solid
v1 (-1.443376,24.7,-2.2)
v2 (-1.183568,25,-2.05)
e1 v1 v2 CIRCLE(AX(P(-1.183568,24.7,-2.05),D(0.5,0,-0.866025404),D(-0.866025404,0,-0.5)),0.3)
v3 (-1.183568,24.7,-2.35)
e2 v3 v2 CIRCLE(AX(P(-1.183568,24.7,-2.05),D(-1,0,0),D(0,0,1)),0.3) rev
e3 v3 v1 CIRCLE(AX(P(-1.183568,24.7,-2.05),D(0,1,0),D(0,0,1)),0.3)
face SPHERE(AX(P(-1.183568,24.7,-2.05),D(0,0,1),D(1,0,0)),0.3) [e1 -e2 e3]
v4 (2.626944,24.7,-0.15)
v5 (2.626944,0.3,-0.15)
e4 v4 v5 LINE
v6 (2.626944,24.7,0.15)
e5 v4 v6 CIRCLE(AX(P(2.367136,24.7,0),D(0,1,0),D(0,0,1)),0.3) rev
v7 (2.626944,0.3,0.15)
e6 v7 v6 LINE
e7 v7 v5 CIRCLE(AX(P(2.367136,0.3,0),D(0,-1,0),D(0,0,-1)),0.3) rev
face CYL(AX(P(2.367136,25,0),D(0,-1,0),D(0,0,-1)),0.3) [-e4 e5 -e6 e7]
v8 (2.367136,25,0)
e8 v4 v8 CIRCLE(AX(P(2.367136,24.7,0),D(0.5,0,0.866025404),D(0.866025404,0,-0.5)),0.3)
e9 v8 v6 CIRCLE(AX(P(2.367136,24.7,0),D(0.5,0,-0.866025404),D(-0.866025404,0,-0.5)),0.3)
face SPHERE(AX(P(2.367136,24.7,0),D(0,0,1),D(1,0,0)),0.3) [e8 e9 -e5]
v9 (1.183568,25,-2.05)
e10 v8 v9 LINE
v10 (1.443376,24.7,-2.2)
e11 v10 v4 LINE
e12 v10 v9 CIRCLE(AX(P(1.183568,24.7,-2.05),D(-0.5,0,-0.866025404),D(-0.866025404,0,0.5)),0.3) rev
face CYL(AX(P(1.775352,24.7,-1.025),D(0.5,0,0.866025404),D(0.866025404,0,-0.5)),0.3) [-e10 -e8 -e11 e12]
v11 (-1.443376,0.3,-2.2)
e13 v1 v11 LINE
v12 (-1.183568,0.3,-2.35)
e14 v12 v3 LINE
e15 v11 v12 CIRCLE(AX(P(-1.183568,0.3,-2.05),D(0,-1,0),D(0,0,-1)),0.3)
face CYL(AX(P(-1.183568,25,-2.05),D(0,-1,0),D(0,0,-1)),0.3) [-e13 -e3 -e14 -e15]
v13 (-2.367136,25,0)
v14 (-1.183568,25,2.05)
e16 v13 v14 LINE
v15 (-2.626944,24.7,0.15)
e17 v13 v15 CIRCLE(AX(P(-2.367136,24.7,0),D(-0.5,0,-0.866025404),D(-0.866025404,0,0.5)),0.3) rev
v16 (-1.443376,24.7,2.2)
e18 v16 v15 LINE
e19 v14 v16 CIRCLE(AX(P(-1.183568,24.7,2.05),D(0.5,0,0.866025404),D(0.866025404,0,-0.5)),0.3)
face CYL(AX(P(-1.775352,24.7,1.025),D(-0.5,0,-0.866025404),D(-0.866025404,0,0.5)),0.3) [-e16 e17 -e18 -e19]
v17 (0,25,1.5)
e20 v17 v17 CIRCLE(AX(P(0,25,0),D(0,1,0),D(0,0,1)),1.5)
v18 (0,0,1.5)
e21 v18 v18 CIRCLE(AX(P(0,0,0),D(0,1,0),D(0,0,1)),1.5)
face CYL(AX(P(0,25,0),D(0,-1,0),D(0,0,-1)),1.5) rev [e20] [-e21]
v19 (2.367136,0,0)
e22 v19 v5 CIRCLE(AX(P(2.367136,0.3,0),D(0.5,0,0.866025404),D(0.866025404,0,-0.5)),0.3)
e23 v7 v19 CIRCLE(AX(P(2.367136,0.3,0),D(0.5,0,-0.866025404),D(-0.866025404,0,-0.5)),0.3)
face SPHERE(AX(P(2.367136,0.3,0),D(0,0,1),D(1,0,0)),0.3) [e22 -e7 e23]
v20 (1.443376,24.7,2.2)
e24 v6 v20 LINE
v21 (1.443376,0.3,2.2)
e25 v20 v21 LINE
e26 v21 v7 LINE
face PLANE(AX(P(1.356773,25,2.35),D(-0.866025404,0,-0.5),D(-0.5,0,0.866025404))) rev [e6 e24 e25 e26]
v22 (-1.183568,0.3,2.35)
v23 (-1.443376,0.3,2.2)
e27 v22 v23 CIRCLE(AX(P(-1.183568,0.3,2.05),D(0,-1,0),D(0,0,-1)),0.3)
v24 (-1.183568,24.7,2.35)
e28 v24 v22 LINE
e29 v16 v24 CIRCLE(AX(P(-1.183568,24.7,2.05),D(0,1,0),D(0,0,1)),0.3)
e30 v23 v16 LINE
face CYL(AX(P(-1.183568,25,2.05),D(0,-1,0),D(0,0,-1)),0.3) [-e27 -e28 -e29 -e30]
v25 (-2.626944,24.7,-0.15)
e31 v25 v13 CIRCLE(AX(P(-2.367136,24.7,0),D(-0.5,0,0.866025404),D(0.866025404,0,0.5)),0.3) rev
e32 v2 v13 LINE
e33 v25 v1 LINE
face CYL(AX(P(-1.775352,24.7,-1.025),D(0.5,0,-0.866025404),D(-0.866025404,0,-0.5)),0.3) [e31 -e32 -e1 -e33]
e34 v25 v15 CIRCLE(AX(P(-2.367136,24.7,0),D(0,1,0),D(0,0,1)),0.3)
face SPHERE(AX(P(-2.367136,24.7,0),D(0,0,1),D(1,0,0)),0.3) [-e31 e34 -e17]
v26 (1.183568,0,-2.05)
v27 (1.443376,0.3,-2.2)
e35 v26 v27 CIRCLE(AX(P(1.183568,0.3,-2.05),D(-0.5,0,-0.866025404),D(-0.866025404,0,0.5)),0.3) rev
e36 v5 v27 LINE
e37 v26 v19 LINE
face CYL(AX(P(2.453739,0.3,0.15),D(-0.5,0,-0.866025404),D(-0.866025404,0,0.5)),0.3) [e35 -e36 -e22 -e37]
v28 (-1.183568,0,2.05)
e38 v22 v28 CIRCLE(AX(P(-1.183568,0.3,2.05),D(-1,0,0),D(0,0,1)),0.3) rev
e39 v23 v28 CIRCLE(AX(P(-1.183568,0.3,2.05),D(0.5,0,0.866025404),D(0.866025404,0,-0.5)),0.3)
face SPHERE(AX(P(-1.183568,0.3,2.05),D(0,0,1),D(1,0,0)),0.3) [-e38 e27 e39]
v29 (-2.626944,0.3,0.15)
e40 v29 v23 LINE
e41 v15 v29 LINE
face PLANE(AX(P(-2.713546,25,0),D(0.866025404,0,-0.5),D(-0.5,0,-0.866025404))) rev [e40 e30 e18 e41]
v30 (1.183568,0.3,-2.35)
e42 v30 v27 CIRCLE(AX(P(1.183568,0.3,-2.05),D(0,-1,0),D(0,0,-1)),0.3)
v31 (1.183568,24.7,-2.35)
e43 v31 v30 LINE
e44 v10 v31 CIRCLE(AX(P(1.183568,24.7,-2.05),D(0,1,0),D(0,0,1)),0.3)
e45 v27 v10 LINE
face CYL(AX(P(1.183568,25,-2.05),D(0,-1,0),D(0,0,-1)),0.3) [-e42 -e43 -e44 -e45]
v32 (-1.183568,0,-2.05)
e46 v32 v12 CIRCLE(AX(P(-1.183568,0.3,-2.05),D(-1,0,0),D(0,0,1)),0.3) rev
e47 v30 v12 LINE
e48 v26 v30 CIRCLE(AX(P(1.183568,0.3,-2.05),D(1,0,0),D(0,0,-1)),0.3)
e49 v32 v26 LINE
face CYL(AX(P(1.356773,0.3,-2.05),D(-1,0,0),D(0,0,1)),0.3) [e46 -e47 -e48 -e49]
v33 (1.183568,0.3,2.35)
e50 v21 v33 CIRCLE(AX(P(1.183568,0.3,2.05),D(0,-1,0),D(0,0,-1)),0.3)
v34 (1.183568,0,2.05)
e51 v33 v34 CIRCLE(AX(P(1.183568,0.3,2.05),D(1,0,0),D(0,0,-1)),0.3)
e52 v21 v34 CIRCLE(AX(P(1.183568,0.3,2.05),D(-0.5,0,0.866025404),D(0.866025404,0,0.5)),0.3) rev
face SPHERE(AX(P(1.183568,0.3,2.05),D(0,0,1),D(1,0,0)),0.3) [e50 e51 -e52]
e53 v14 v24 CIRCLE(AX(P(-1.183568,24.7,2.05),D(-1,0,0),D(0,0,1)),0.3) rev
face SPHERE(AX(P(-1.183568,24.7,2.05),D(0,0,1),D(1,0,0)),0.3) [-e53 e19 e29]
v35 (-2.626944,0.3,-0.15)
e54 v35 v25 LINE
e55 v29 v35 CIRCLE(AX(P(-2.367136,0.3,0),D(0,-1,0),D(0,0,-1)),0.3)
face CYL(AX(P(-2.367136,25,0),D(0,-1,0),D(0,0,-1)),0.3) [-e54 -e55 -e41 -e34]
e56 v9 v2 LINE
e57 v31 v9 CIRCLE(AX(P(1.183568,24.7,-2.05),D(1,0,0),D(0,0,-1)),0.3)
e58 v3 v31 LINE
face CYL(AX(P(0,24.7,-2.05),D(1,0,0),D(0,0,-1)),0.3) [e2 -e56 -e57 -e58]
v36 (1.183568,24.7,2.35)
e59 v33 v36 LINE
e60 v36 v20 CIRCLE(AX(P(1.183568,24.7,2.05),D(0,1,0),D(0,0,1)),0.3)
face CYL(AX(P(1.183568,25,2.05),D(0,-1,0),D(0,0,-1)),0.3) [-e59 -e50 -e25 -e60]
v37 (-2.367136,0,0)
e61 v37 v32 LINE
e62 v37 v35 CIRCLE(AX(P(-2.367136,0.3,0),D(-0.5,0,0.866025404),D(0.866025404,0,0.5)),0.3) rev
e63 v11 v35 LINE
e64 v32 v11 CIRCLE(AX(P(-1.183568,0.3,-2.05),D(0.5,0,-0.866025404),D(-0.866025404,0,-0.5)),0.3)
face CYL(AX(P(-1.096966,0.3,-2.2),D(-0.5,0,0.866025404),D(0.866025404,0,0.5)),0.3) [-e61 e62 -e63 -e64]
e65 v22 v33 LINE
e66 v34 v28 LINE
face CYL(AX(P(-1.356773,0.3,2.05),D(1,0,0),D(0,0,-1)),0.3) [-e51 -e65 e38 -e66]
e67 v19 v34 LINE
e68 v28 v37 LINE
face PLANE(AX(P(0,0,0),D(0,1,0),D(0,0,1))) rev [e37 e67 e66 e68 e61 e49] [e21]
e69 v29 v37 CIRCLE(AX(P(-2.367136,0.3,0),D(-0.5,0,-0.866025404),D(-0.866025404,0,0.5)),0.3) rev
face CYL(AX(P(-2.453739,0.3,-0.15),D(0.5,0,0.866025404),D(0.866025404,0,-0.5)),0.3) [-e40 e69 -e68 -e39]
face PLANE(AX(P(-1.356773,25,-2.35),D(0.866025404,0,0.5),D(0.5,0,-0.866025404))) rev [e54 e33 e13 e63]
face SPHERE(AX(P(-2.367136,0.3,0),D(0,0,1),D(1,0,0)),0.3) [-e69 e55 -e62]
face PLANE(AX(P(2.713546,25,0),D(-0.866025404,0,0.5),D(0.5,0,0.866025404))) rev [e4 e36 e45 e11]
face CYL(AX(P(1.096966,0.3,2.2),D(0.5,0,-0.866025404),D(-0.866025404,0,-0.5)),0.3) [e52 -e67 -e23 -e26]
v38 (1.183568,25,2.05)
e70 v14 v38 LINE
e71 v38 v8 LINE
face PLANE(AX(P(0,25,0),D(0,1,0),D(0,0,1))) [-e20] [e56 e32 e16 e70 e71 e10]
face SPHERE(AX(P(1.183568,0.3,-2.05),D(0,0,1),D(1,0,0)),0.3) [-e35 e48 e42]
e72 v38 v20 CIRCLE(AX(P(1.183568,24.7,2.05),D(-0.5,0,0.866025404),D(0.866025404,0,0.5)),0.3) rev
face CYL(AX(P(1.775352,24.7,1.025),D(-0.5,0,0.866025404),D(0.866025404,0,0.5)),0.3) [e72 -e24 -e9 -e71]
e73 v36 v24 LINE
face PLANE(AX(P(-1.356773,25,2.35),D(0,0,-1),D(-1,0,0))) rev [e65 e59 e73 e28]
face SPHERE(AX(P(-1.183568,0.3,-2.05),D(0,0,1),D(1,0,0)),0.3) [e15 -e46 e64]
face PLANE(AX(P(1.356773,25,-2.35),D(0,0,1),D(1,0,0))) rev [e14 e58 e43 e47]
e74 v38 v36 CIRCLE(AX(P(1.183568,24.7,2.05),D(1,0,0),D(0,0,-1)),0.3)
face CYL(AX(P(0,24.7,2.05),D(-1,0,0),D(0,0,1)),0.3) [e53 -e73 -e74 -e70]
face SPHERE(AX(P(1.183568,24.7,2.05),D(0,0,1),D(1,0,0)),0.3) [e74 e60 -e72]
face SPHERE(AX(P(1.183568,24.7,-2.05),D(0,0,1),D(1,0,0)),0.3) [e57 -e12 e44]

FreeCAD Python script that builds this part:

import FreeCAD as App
import Part
import Sketcher
Q = App.Units.Quantity


def edges_at(feature, points):
    """Names of the edges that pass closest to the given points."""
    edges = feature.Shape.Edges
    near = lambda p: min(range(len(edges)), key=lambda i: edges[i].distToShape(Part.Vertex(*p))[0])
    return sorted({f"Edge{near(p) + 1}" for p in points})

doc = App.newDocument("Part")
body = doc.addObject("PartDesign::Body", "Body")

sketch1 = doc.addObject("Sketcher::SketchObject", "Sketch")
body.addObject(sketch1)
sketch1.AttachmentSupport = (doc.XZ_Plane, [""])
sketch1.MapMode = "FlatFace"
sketch1.addGeometry(Part.LineSegment(App.Vector(2.713546, 0, 0), App.Vector(1.356773, -2.35, 0)), False)
sketch1.addGeometry(Part.LineSegment(App.Vector(1.356773, -2.35, 0), App.Vector(-1.356773, -2.35, 0)), False)
sketch1.addGeometry(Part.LineSegment(App.Vector(-1.356773, -2.35, 0), App.Vector(-2.713546, 0, 0)), False)
sketch1.addGeometry(Part.LineSegment(App.Vector(-2.713546, 0, 0), App.Vector(-1.356773, 2.35, 0)), False)
sketch1.addGeometry(Part.LineSegment(App.Vector(-1.356773, 2.35, 0), App.Vector(1.356773, 2.35, 0)), False)
sketch1.addGeometry(Part.LineSegment(App.Vector(1.356773, 2.35, 0), App.Vector(2.713546, 0, 0)), False)
sketch1.addGeometry(Part.Circle(App.Vector(0, 0, 0), App.Vector(0, 0, 1), 1.5), False)
sketch1.addConstraint(Sketcher.Constraint("Coincident", 0, 2, 1, 1))
sketch1.addConstraint(Sketcher.Constraint("Coincident", 1, 2, 2, 1))
sketch1.addConstraint(Sketcher.Constraint("Coincident", 2, 2, 3, 1))
sketch1.addConstraint(Sketcher.Constraint("Coincident", 3, 2, 4, 1))
sketch1.addConstraint(Sketcher.Constraint("Coincident", 4, 2, 5, 1))
sketch1.addConstraint(Sketcher.Constraint("Coincident", 5, 2, 0, 1))
sketch1.addConstraint(Sketcher.Constraint("Horizontal", 1))
sketch1.addConstraint(Sketcher.Constraint("Horizontal", 4))
sketch1.addConstraint(Sketcher.Constraint("Coincident", 6, 3, -1, 1))
sketch1.addConstraint(Sketcher.Constraint("Symmetric", 0, 2, 3, 2, -1, 1))
sketch1.addConstraint(Sketcher.Constraint("Symmetric", 2, 2, 5, 2, -1, 1))
sketch1.addConstraint(Sketcher.Constraint("PointOnObject", 2, 2, -1))
sketch1.addConstraint(Sketcher.Constraint("Parallel", 2, 5))
sketch1.addConstraint(Sketcher.Constraint("Vertical", 1, 2, 3, 2))
sketch1.addConstraint(Sketcher.Constraint("Diameter", 6, 3.0))
sketch1.addConstraint(Sketcher.Constraint("Angle", 0, Q("-120 deg")))
sketch1.addConstraint(Sketcher.Constraint("DistanceY", 1, 2, 3, 2, 4.7))
sketch1.addConstraint(Sketcher.Constraint("DistanceX", 1, 2, 1, 1, 2.713546))
pad1 = doc.addObject("PartDesign::Pad", "Pad")
body.addObject(pad1)
pad1.Profile = sketch1
pad1.Length = 25
pad1.Reversed = True
doc.recompute()

fillet = doc.addObject("PartDesign::Fillet", "Fillet")
body.addObject(fillet)
fillet.Base = (pad1, edges_at(pad1, [
    (0, 25, -2.35),
    (1.357, 12.5, 2.35),
    (-1.357, 12.5, 2.35),
    (-2.714, 12.5, 0),
    (-1.357, 12.5, -2.35),
    (1.357, 12.5, -2.35),
    (2.714, 12.5, 0),
    (-2.035, 25, -1.175),
    (-2.035, 25, 1.175),
    (0, 25, 2.35),
    (2.035, 25, 1.175),
    (0, 0, 2.35),
    (-2.035, 0, 1.175),
    (-2.035, 0, -1.175),
    (2.035, 25, -1.175),
    (0, 0, -2.35),
    (2.035, 0, -1.175),
    (2.035, 0, 1.175),
]))
fillet.Radius = 0.3

doc.recompute()
